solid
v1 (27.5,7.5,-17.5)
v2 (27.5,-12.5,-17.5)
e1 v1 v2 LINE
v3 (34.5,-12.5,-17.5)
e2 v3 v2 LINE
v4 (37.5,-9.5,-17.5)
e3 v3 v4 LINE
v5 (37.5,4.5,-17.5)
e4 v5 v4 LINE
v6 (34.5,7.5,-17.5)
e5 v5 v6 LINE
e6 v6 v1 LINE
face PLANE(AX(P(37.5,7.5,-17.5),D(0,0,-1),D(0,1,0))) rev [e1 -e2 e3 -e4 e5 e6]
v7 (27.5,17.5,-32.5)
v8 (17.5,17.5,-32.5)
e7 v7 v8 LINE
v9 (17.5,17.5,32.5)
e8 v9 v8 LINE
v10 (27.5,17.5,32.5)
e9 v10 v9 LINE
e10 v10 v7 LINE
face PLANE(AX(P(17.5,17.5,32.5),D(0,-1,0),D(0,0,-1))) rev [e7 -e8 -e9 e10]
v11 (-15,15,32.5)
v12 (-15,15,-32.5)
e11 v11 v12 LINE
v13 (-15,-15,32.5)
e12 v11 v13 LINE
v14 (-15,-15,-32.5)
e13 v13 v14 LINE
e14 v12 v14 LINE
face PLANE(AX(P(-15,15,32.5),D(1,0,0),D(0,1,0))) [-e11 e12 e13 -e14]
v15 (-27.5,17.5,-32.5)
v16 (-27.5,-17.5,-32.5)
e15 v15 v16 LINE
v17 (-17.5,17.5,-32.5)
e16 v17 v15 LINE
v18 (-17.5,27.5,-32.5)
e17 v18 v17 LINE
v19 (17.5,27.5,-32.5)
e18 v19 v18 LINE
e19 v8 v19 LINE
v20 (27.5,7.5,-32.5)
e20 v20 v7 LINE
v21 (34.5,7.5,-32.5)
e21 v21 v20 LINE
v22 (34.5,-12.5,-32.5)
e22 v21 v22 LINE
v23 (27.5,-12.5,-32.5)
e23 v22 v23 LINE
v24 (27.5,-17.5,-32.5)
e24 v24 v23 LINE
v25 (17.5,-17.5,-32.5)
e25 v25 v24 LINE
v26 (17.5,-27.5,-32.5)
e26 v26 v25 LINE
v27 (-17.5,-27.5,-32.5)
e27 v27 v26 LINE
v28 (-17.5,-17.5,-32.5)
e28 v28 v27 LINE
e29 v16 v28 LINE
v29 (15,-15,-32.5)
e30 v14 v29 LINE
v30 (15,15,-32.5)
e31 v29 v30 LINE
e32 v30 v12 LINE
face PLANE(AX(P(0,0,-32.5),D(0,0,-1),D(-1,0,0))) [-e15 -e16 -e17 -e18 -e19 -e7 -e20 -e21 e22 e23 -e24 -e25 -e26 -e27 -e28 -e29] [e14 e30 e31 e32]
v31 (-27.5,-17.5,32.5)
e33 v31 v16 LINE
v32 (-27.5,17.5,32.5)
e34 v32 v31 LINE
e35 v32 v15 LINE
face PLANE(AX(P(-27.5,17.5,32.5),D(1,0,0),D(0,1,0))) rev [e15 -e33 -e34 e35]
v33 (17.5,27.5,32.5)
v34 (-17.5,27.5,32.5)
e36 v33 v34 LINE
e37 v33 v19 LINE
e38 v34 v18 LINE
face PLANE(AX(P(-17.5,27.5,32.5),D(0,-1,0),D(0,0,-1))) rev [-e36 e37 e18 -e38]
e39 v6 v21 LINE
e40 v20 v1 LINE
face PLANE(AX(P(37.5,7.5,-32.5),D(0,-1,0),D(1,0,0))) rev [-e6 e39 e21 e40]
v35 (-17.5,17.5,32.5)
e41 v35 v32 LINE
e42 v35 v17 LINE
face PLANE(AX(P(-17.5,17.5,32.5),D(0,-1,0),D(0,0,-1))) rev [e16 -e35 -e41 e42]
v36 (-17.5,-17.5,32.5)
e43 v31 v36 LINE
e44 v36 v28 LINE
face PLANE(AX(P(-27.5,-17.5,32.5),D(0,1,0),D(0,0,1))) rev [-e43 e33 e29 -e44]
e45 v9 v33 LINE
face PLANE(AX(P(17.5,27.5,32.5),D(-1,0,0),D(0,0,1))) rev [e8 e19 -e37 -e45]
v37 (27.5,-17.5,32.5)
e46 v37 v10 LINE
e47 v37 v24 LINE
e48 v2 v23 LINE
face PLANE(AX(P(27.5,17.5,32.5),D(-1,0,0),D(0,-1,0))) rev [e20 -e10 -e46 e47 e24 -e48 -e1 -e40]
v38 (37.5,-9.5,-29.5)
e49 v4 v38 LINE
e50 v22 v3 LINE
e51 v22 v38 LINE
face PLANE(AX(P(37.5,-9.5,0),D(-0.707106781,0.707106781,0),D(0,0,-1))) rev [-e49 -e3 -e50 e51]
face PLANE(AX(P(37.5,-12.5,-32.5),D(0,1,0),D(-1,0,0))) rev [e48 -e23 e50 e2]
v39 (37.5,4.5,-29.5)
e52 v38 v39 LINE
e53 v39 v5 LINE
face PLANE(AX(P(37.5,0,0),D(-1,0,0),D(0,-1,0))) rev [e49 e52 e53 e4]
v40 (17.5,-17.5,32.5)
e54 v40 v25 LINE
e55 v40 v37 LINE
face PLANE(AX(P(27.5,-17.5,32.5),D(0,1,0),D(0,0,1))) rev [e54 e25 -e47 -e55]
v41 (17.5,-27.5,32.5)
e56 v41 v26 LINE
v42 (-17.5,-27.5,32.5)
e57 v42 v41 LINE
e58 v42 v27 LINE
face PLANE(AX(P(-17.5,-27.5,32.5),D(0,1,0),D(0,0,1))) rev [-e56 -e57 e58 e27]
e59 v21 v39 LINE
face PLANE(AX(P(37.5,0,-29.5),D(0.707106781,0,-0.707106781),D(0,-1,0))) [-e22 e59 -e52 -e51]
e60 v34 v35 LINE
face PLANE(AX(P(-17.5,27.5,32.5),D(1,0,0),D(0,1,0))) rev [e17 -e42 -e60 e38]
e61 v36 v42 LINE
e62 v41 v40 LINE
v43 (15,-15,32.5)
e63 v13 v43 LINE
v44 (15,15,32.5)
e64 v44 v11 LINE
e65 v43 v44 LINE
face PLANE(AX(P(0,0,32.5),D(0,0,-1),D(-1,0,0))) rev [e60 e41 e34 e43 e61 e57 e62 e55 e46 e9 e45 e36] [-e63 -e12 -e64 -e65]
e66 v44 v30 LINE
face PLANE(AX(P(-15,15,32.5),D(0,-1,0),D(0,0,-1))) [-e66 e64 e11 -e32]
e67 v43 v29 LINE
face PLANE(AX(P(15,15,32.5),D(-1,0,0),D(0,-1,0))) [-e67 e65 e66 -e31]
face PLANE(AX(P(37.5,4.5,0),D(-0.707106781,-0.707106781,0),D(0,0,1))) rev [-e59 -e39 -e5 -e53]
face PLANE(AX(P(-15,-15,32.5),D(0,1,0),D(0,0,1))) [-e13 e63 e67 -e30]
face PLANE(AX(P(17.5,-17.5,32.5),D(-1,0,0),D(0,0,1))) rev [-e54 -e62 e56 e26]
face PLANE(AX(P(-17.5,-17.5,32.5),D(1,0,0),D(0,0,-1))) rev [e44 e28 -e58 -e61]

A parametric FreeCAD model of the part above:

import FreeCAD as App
import Part
import Sketcher

V = App.Vector


def edges_at(feature, points):
    """Names of the edges that pass closest to the given points."""
    edges = feature.Shape.Edges
    near = lambda p: min(range(len(edges)), key=lambda i: edges[i].distToShape(Part.Vertex(*p))[0])
    return sorted({f"Edge{near(p) + 1}" for p in points})


def add_polygon(sketch, points):
    """Adds a closed chain of lines whose ends are joined by coincident constraints."""
    first, n = sketch.GeometryCount, len(points)
    for a, b in zip(points, points[1:] + points[:1]):
        sketch.addGeometry(Part.LineSegment(App.Vector(*a, 0), App.Vector(*b, 0)), False)
    for i in range(n):
        sketch.addConstraint(Sketcher.Constraint("Coincident", first + i, 2, first + (i + 1) % n, 1))

doc = App.newDocument("Part")
body = doc.addObject("PartDesign::Body", "Body")

# Sketch on XY plane
sketch1 = body.newObject("Sketcher::SketchObject", "Sketch")
sketch1.AttachmentSupport = (doc.getObject("XY_Plane"), [""])
sketch1.MapMode = "FlatFace"
add_polygon(sketch1, [(17.5, 27.5), (-17.5, 27.5), (-17.5, 17.5), (-27.5, 17.5), (-27.5, -17.5), (-17.5, -17.5), (-17.5, -27.5), (17.5, -27.5), (17.5, -17.5), (27.5, -17.5), (27.5, 17.5), (17.5, 17.5)])  # lines 0-11
add_polygon(sketch1, [(-15, -15), (-15, 15), (15, 15), (15, -15)])  # lines 12-15
sketch1.addConstraint([
    Sketcher.Constraint("Horizontal", 0),
    Sketcher.Constraint("Vertical", 1),
    Sketcher.Constraint("Horizontal", 2),
    Sketcher.Constraint("Vertical", 3),
    Sketcher.Constraint("Horizontal", 4),
    Sketcher.Constraint("Vertical", 5),
    Sketcher.Constraint("Horizontal", 6),
    Sketcher.Constraint("Vertical", 7),
    Sketcher.Constraint("Horizontal", 8),
    Sketcher.Constraint("Vertical", 9),
    Sketcher.Constraint("Horizontal", 10),
    Sketcher.Constraint("Vertical", 11),
    Sketcher.Constraint("Vertical", 12),
    Sketcher.Constraint("Horizontal", 13),
    Sketcher.Constraint("Vertical", 14),
    Sketcher.Constraint("Horizontal", 15),
    Sketcher.Constraint("Symmetric", 0, 2, 6, 2, -1, 1),
    Sketcher.Constraint("Symmetric", 2, 2, 8, 2, -1, 1),
    Sketcher.Constraint("Symmetric", 4, 2, 10, 2, -1, 1),
    Sketcher.Constraint("Symmetric", 12, 2, 14, 2, -1, 1),
    Sketcher.Constraint("Symmetric", 4, 2, 7, 2, -2),
    Sketcher.Constraint("Equal", 10, 1),
    Sketcher.Constraint("Equal", 6, 3),
    Sketcher.Constraint("Equal", 15, 12),
    Sketcher.Constraint("DistanceX", 0, 2, 0, 1, 35.0),
    Sketcher.Constraint("DistanceX", 2, 2, 2, 1, 10.0),
    Sketcher.Constraint("DistanceX", 13, 1, 13, 2, 30.0),
])
pad1 = body.newObject("PartDesign::Pad", "Pad")
pad1.Profile = sketch1
pad1.Length = 65
pad1.Midplane = True

# Sketch on YZ plane
sketch2 = body.newObject("Sketcher::SketchObject", "Sketch001")
sketch2.AttachmentSupport = (doc.getObject("YZ_Plane"), [""])
sketch2.MapMode = "FlatFace"
sketch2.AttachmentOffset = App.Placement(V(0, 0, 27.5), App.Rotation())
add_polygon(sketch2, [(7.5, -17.5), (-12.5, -17.5), (-12.5, -32.5), (7.5, -32.5)])  # lines 0-3
sketch2.addConstraint([
    Sketcher.Constraint("Horizontal", 0),
    Sketcher.Constraint("Vertical", 1),
    Sketcher.Constraint("Horizontal", 2),
    Sketcher.Constraint("Vertical", 3),
    Sketcher.Constraint("DistanceX", 0, 2, 0, 1, 20.0),
    Sketcher.Constraint("DistanceY", 1, 2, 1, 1, 15.0),
    Sketcher.Constraint("DistanceX", 0, 2, -1, 1, 12.5),
    Sketcher.Constraint("DistanceY", 0, 2, -1, 1, 17.5),
])
pad2 = body.newObject("PartDesign::Pad", "Pad001")
pad2.Profile = sketch2
pad2.Length = 10
doc.recompute()

chamfer = body.newObject("PartDesign::Chamfer", "Chamfer")
chamfer.Base = (pad2, edges_at(pad2, [(37.5, -2.5, -32.5), (37.5, 7.5, -25), (37.5, -12.5, -25)]))
chamfer.Size = 3

doc.recompute()
